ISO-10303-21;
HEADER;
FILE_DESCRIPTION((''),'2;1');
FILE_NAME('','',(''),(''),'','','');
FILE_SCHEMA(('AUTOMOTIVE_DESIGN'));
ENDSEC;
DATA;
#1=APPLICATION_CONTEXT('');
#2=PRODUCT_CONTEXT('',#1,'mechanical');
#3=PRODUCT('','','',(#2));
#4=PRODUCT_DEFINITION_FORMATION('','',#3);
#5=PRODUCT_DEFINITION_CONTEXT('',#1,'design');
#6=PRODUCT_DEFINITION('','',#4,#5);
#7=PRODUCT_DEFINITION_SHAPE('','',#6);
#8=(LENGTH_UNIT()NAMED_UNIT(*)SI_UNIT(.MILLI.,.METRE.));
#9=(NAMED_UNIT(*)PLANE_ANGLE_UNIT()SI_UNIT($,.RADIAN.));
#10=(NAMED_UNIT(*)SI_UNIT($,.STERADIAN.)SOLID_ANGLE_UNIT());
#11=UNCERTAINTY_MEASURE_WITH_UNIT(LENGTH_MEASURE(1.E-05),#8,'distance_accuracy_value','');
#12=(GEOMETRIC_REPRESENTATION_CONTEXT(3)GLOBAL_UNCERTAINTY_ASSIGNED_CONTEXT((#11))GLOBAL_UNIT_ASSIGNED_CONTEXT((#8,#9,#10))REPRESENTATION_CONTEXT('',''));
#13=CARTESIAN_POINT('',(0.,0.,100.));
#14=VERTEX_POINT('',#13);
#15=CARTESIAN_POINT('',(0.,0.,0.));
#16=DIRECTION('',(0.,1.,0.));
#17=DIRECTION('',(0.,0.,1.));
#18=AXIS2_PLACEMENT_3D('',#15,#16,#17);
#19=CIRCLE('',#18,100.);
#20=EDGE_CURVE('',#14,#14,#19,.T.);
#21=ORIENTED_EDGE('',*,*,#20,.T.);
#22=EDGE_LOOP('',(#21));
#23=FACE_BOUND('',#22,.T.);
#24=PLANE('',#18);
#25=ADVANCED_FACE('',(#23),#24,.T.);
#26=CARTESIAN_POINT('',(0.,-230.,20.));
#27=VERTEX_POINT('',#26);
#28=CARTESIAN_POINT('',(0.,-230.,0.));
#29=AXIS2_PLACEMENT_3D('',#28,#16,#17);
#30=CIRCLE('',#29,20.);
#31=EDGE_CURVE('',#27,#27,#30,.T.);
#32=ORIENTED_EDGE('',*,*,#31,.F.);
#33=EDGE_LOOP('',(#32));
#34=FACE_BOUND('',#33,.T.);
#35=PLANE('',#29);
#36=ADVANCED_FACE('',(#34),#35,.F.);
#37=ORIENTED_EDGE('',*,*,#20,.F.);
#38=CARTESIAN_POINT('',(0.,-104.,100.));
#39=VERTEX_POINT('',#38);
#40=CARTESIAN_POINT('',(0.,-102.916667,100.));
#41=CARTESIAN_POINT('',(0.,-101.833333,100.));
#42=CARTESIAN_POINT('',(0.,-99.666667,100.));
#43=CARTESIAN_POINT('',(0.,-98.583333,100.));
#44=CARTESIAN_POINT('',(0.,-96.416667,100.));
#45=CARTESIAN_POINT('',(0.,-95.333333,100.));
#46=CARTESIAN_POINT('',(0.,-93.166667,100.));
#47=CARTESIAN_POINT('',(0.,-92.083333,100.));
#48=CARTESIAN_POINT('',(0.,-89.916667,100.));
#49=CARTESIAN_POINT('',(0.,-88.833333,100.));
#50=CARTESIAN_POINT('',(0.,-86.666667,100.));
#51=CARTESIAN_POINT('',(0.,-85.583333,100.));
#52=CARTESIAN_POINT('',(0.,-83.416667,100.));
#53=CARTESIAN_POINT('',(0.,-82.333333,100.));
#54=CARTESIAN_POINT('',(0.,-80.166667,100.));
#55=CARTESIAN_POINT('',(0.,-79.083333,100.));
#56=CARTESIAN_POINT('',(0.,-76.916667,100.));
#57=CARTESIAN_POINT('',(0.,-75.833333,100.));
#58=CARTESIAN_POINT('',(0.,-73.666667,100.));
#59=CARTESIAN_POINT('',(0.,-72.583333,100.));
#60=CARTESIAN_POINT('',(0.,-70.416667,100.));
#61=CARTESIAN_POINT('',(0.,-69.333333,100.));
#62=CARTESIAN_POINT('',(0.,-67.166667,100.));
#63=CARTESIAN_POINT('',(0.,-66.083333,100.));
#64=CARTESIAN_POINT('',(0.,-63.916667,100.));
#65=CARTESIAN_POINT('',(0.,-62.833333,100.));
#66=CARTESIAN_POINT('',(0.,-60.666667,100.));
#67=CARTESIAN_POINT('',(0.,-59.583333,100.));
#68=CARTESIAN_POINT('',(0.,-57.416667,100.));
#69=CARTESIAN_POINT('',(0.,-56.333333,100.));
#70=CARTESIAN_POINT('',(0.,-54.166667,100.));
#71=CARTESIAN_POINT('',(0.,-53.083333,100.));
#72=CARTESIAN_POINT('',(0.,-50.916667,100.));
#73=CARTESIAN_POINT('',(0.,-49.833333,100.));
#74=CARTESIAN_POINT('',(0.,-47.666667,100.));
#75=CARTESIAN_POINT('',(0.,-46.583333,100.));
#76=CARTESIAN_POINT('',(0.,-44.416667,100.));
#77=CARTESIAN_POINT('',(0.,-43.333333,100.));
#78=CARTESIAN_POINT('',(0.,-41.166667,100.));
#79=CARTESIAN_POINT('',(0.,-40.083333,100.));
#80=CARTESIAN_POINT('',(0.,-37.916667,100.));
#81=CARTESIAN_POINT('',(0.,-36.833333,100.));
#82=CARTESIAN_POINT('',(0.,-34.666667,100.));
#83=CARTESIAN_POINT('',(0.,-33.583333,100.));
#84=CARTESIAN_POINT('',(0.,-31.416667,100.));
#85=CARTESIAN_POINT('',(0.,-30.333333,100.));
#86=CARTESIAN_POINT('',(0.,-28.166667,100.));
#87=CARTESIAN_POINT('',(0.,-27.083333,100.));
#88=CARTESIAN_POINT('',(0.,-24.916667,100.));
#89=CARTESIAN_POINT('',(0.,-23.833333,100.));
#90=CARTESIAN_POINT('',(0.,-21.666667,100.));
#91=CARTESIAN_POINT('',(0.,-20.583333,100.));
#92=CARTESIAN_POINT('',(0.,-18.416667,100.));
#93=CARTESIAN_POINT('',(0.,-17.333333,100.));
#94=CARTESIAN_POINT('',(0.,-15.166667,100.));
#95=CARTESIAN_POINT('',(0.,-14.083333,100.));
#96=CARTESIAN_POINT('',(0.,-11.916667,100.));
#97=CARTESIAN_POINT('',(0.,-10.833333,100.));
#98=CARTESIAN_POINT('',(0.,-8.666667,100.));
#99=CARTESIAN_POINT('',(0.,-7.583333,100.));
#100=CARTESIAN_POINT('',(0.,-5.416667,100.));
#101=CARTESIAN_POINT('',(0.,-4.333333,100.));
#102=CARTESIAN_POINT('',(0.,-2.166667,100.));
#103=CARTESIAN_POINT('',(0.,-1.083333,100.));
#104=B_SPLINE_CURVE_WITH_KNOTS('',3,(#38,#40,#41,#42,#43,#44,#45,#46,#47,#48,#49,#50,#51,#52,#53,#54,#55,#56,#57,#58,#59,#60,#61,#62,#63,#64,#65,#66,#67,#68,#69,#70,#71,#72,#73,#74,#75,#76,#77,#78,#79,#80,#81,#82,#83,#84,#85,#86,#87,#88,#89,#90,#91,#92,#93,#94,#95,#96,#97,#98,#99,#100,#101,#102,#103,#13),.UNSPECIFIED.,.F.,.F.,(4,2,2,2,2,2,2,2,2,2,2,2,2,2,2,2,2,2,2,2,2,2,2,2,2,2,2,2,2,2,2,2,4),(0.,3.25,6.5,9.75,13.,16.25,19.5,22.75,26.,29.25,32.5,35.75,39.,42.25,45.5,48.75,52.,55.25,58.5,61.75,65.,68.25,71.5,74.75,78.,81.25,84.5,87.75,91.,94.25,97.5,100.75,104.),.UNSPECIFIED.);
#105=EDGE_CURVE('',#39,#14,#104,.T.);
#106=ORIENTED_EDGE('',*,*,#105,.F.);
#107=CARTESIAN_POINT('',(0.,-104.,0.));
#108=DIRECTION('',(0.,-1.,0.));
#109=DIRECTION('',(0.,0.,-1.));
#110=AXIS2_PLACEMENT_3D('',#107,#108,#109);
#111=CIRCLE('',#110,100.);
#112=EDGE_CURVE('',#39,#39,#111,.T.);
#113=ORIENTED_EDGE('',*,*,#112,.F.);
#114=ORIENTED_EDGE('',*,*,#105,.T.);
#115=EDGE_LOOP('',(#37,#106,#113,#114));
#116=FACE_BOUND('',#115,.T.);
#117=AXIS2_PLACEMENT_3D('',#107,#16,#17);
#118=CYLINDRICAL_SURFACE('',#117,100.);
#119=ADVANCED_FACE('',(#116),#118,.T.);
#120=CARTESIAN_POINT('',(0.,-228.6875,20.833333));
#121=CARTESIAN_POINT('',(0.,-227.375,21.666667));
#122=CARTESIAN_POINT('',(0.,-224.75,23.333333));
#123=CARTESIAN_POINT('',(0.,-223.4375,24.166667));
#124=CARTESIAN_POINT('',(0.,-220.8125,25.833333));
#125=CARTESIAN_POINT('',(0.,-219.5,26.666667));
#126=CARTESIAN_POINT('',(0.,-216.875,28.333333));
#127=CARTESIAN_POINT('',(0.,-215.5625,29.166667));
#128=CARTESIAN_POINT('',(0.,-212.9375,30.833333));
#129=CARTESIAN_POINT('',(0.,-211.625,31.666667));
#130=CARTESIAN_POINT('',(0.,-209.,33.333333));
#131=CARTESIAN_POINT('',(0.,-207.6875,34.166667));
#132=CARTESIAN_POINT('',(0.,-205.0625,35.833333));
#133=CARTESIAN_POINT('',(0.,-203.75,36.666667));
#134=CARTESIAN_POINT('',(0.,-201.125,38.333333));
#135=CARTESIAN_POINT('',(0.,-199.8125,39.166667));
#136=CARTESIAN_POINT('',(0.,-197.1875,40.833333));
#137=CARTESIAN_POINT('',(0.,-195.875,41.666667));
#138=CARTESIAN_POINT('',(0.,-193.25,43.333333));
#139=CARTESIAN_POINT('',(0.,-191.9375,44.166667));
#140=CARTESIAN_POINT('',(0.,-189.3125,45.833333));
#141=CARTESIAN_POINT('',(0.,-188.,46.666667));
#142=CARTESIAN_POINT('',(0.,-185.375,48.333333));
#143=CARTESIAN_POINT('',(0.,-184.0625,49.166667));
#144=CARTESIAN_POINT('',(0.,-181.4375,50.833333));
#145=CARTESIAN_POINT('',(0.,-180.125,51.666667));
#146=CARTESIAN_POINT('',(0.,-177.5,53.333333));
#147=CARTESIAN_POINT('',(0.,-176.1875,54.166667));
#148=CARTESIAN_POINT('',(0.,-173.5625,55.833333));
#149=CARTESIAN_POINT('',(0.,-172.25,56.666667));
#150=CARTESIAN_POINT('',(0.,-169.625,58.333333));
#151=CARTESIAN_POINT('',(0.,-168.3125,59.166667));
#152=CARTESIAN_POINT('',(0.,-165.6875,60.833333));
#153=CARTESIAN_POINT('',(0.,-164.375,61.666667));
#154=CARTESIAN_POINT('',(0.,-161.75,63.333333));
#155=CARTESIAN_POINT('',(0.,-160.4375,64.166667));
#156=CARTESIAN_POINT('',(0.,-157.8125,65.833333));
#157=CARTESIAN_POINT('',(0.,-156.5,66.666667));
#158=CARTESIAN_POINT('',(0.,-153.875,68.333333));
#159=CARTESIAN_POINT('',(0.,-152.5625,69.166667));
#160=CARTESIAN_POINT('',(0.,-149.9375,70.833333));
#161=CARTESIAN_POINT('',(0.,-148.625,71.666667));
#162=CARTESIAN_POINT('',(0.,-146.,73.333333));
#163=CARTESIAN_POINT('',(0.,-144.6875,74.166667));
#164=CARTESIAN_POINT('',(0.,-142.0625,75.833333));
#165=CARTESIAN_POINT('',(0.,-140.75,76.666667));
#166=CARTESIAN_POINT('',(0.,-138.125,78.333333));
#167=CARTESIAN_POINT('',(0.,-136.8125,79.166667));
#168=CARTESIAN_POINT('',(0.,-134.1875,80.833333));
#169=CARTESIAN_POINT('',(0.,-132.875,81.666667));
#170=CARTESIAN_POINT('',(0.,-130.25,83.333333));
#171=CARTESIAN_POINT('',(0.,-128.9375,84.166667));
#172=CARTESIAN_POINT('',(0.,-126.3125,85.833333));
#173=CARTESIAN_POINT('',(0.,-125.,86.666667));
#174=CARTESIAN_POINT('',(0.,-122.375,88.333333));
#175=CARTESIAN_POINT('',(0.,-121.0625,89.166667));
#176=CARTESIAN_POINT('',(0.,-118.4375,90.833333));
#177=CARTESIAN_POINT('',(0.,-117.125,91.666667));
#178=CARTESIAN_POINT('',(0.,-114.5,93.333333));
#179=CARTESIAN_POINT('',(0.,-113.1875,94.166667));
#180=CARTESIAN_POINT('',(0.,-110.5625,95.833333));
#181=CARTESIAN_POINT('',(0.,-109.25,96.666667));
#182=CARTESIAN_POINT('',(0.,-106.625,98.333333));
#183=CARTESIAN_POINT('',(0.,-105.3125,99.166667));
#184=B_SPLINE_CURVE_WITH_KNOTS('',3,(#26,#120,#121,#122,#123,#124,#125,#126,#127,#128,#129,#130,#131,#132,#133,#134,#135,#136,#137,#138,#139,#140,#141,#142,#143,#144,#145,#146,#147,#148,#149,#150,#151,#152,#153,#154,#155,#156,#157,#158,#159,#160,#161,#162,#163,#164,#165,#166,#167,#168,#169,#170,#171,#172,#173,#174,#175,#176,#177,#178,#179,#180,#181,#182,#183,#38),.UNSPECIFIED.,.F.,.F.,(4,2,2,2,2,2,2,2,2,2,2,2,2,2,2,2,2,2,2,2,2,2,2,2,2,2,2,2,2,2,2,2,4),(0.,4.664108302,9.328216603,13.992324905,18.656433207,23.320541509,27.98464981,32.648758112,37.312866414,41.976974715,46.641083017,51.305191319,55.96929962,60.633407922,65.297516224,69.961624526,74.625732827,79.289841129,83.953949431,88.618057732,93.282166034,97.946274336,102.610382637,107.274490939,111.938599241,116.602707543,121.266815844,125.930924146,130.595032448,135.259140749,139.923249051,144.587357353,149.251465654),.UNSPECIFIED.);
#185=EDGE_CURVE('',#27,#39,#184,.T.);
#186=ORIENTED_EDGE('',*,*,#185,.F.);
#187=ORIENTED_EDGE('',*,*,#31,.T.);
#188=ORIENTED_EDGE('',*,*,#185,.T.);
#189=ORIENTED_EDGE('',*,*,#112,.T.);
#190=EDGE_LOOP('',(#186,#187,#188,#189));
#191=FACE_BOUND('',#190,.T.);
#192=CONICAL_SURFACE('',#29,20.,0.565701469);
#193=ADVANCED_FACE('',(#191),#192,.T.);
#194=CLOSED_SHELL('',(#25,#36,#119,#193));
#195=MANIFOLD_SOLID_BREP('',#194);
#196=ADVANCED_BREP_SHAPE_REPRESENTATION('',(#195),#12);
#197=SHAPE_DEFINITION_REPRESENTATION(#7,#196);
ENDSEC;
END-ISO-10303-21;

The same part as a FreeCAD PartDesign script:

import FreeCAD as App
import Part
import Sketcher

V = App.Vector

doc = App.newDocument("Part")
body = doc.addObject("PartDesign::Body", "Body")

# Sketch on XZ plane
sketch1 = body.newObject("Sketcher::SketchObject", "Sketch")
sketch1.AttachmentSupport = (doc.getObject("XZ_Plane"), [""])
sketch1.MapMode = "FlatFace"
sketch1.addGeometry(Part.Circle(V(0, 0, 0), V(0, 0, 1), 100), False)
sketch1.addConstraint(Sketcher.Constraint("Coincident", 0, 3, -1, 1))
sketch1.addConstraint(Sketcher.Constraint("Diameter", 0, 200.0))
pad1 = body.newObject("PartDesign::Pad", "Pad")
pad1.Profile = sketch1
pad1.Length = 104

# Sketch on XZ plane
sketch2 = body.newObject("Sketcher::SketchObject", "Sketch001")
sketch2.AttachmentSupport = (doc.getObject("XZ_Plane"), [""])
sketch2.MapMode = "FlatFace"
sketch2.AttachmentOffset = App.Placement(V(0, 0, 230), App.Rotation())
sketch2.addGeometry(Part.Circle(V(0, 0, 0), V(0, 0, 1), 20), False)
sketch2.addConstraint(Sketcher.Constraint("Coincident", 0, 3, -1, 1))
sketch2.addConstraint(Sketcher.Constraint("Diameter", 0, 40.0))

# Sketch on XZ plane
sketch3 = body.newObject("Sketcher::SketchObject", "Sketch002")
sketch3.AttachmentSupport = (doc.getObject("XZ_Plane"), [""])
sketch3.MapMode = "FlatFace"
sketch3.AttachmentOffset = App.Placement(V(0, 0, 104), App.Rotation())
sketch3.addGeometry(Part.Circle(V(0, 0, 0), V(0, 0, 1), 100), False)
sketch3.addConstraint(Sketcher.Constraint("Coincident", 0, 3, -1, 1))
sketch3.addConstraint(Sketcher.Constraint("Diameter", 0, 200.0))

additiveloft = body.newObject("PartDesign::AdditiveLoft", "AdditiveLoft")
additiveloft.Profile = sketch2
additiveloft.Sections = [sketch3]

doc.recompute()
